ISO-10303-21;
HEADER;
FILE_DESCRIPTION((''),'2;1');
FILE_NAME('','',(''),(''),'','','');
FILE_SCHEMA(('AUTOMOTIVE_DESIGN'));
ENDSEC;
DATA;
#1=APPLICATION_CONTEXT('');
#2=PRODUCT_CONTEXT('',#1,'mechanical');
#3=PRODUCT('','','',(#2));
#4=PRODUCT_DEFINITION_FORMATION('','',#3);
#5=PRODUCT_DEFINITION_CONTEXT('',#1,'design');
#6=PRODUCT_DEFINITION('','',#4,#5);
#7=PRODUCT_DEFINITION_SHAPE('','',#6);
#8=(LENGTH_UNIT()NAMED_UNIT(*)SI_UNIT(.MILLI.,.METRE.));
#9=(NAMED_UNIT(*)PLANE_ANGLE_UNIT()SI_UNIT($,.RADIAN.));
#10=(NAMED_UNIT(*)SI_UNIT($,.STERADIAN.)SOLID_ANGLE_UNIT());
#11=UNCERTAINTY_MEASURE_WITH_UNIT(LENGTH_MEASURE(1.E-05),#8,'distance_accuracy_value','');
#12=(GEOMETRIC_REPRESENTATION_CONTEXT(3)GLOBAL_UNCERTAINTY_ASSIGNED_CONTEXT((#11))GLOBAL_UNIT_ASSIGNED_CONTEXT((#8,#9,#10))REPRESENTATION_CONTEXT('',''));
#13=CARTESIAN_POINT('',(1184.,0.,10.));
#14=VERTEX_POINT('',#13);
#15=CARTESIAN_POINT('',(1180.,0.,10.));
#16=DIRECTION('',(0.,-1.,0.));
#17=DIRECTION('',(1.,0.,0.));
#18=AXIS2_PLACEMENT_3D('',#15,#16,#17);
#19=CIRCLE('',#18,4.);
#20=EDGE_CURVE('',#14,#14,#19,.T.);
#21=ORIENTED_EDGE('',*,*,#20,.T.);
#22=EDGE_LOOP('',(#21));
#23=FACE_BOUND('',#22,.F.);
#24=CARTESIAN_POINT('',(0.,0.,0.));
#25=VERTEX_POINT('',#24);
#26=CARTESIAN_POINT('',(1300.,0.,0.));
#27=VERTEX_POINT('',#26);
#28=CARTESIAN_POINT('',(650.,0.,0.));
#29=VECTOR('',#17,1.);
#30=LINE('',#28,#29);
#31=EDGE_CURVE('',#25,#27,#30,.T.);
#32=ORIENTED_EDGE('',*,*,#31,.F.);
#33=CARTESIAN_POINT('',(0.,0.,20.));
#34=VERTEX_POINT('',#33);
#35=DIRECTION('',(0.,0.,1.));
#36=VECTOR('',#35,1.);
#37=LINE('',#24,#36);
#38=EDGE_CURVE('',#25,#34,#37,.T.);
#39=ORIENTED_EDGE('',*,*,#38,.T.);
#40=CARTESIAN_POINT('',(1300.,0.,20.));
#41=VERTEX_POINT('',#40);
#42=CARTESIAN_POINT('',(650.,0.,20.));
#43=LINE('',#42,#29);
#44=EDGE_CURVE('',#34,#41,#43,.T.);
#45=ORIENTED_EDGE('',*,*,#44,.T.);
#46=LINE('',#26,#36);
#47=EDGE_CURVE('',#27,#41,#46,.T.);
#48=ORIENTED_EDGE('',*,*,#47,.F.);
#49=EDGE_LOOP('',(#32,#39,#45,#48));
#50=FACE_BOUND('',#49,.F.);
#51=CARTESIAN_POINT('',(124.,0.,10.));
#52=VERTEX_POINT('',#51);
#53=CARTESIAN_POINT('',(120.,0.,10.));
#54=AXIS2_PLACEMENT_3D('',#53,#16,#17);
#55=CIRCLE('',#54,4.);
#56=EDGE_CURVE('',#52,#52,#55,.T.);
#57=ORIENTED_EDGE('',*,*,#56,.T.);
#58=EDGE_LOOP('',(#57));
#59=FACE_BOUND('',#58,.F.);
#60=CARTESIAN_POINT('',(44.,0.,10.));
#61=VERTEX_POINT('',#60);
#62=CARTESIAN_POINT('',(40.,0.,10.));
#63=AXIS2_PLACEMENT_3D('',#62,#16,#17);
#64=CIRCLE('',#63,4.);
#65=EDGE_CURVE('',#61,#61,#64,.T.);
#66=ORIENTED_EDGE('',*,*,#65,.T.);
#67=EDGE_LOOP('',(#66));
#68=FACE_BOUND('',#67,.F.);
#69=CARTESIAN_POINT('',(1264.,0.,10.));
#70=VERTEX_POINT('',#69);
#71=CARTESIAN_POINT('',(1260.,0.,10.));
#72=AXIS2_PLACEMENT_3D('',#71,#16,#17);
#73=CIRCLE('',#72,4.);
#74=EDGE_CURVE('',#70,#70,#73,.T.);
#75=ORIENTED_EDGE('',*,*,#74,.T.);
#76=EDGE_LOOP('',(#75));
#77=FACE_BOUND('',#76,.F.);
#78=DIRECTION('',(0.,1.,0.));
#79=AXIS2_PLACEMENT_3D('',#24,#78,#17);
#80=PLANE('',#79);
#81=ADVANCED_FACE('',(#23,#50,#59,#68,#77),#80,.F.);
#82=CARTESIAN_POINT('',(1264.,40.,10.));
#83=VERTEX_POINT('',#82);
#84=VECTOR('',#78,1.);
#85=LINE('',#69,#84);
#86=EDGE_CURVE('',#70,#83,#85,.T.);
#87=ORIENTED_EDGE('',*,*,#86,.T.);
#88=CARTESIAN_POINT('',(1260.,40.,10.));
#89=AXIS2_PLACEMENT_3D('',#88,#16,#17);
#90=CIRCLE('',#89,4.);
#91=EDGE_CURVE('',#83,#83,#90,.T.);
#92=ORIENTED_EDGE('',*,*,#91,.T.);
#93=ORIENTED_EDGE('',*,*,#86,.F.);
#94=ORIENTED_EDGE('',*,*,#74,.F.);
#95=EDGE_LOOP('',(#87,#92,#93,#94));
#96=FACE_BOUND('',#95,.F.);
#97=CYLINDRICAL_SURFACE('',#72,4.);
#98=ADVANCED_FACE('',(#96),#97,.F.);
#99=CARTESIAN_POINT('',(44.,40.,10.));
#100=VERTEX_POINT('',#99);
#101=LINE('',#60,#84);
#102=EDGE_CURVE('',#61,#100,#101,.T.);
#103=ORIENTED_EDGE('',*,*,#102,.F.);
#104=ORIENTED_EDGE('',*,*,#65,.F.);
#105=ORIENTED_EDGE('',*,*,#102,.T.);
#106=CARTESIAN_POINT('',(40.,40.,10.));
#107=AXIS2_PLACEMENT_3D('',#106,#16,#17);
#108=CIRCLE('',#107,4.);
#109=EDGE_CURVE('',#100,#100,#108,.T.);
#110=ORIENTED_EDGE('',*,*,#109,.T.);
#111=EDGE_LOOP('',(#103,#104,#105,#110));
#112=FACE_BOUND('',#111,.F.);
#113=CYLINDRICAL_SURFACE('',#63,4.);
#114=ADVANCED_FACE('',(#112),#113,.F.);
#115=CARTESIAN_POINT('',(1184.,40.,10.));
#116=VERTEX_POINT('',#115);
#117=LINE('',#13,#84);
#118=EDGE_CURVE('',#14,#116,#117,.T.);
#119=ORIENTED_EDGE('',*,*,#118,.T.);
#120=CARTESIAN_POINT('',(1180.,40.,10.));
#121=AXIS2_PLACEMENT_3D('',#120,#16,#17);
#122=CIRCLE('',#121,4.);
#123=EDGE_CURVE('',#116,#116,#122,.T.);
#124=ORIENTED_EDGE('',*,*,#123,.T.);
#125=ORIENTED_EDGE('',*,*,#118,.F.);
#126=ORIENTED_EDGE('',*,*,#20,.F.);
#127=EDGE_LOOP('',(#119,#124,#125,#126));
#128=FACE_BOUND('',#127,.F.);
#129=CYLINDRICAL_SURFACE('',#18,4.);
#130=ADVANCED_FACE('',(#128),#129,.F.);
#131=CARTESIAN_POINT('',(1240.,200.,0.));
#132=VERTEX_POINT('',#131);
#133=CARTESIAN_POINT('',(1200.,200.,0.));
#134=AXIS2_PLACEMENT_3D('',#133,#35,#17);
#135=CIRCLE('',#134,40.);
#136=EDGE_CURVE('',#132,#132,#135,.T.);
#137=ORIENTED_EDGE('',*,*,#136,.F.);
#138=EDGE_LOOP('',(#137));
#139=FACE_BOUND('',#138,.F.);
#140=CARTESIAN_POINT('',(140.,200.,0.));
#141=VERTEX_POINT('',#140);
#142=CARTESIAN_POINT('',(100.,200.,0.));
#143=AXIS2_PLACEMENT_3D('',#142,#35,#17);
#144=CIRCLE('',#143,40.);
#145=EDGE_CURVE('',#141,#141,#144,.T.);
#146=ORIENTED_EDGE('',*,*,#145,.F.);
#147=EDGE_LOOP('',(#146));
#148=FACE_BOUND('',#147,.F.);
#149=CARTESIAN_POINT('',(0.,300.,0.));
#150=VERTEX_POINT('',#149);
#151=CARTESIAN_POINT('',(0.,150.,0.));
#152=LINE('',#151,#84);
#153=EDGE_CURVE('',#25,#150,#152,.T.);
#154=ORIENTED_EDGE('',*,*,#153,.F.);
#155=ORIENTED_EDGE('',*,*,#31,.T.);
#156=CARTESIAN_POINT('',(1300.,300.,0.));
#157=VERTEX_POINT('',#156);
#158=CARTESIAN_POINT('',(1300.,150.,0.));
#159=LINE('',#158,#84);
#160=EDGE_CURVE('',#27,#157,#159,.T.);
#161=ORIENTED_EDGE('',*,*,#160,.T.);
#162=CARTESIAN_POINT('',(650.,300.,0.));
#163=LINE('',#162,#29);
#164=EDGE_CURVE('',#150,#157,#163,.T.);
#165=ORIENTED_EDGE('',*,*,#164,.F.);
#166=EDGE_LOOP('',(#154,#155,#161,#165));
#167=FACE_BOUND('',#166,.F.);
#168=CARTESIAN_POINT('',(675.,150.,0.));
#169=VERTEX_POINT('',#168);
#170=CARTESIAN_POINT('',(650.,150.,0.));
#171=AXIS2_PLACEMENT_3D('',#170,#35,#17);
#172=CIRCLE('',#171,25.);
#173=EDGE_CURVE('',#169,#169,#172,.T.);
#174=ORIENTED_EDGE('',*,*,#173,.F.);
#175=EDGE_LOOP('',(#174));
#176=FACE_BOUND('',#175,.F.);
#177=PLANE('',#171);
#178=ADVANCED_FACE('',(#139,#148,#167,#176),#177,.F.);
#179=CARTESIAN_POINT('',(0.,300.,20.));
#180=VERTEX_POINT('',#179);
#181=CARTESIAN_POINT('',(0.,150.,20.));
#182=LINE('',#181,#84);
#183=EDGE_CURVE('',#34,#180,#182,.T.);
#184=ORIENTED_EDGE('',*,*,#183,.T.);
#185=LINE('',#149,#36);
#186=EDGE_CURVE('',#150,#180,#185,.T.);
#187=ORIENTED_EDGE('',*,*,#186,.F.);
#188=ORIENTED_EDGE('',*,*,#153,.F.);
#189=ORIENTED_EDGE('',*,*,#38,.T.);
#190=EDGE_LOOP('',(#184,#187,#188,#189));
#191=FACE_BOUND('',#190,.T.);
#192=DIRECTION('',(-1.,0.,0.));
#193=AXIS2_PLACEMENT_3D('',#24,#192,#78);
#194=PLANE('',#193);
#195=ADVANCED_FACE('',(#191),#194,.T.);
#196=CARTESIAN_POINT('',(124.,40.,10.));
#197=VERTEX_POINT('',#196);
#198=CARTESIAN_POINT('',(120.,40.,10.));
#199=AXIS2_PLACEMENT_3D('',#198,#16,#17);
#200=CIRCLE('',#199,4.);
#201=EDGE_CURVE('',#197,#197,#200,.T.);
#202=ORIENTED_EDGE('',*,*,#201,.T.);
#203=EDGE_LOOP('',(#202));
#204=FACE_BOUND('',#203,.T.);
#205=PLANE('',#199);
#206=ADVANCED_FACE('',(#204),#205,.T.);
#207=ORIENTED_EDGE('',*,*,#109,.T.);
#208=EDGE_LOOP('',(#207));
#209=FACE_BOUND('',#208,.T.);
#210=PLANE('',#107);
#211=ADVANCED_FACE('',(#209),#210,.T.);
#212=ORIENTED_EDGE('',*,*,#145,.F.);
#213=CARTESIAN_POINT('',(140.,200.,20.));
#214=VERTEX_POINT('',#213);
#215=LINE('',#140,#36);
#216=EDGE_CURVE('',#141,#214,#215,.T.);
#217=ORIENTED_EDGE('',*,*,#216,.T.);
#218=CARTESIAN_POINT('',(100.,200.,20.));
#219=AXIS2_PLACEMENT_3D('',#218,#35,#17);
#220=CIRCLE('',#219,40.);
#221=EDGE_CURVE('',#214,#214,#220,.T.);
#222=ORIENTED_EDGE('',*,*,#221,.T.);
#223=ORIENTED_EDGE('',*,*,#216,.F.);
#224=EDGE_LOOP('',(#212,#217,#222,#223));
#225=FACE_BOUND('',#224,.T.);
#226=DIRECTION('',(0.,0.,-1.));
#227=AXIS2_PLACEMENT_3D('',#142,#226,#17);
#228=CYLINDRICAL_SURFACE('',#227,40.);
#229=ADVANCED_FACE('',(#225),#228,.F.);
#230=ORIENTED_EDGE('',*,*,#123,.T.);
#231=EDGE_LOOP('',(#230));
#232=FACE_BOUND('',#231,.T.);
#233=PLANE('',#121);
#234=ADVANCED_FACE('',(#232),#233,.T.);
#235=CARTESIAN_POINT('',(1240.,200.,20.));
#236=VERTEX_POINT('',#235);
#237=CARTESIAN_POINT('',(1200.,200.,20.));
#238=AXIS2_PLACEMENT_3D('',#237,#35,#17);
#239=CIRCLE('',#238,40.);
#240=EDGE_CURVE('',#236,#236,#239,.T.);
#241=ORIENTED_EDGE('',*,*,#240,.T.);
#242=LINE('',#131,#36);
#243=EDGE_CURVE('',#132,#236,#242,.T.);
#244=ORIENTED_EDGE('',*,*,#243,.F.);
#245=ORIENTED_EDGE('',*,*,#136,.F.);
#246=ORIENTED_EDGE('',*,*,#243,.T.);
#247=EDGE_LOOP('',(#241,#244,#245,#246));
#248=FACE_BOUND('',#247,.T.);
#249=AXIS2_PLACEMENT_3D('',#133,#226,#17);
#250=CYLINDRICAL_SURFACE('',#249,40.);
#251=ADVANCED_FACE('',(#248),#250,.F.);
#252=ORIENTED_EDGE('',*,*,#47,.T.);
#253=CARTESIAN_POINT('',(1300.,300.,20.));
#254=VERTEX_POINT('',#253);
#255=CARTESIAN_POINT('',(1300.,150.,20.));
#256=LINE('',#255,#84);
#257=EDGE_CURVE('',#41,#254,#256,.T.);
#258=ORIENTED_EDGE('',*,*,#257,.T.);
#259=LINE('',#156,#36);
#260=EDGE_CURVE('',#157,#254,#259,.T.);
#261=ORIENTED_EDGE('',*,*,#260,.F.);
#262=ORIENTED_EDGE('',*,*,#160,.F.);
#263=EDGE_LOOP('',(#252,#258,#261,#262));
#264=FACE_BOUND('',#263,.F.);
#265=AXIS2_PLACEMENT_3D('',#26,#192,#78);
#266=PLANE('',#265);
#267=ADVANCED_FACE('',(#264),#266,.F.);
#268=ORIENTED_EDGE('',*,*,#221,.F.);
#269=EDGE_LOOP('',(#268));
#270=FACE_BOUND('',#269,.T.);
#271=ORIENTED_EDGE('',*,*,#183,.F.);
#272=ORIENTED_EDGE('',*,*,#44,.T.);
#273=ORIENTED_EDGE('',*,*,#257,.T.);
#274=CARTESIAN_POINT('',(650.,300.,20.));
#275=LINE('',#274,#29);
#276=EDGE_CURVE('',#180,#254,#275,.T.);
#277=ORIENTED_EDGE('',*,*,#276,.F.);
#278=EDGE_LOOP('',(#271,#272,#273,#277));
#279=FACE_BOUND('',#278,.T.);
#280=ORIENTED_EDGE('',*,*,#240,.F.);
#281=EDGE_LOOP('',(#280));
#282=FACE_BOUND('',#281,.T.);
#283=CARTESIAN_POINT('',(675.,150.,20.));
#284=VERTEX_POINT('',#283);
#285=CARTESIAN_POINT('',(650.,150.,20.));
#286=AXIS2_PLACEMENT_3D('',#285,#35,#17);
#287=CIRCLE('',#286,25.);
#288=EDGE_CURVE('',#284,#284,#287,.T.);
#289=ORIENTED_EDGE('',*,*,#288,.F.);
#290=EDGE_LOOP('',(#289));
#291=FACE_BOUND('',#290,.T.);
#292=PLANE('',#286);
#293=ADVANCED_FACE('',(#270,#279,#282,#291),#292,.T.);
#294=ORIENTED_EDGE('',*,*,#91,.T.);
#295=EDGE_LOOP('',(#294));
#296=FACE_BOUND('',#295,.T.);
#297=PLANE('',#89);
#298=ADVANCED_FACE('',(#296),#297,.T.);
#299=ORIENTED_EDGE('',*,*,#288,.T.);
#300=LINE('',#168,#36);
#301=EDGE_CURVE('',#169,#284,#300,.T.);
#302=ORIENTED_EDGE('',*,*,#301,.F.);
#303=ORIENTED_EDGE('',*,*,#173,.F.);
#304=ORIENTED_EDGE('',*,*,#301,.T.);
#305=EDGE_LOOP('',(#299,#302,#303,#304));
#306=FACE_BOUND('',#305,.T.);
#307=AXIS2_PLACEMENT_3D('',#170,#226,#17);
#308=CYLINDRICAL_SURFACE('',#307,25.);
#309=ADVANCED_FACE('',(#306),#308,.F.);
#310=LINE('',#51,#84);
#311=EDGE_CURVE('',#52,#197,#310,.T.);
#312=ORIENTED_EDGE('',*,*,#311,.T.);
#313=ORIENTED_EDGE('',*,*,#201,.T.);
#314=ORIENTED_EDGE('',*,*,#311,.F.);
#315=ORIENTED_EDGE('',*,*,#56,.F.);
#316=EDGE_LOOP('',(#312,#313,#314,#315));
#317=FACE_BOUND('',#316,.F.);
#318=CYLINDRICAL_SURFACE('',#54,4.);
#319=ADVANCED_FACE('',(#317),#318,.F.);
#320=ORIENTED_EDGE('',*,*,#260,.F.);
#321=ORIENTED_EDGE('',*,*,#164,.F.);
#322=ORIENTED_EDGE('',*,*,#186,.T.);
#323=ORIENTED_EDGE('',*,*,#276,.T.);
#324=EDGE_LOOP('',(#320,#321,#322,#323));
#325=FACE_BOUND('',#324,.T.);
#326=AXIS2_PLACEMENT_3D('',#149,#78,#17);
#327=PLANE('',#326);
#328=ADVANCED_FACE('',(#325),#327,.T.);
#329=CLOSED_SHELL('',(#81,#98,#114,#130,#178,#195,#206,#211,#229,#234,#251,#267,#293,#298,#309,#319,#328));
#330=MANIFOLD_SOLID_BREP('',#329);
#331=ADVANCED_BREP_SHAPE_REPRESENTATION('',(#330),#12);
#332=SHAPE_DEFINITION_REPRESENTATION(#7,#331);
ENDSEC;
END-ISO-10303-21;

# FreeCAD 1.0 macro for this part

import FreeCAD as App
import Part
import Sketcher
from FreeCAD import Vector

doc = App.newDocument("Part")
body = doc.addObject("PartDesign::Body", "Body")

sketch1 = body.newObject("Sketcher::SketchObject", "Sketch")
sketch1.AttachmentSupport = (doc.getObject("XY_Plane"), [""])
sketch1.MapMode = "FlatFace"
sketch1.addGeometry([
    Part.LineSegment(Vector(0, 300, 0), Vector(0, 0, 0)),
    Part.LineSegment(Vector(0, 0, 0), Vector(1300, 0, 0)),
    Part.LineSegment(Vector(1300, 0, 0), Vector(1300, 300, 0)),
    Part.LineSegment(Vector(1300, 300, 0), Vector(0, 300, 0)),
    Part.Circle(Vector(650, 150, 0), Vector(0, 0, 1), 25),
    Part.Circle(Vector(100, 200, 0), Vector(0, 0, 1), 40),
    Part.Circle(Vector(1200, 200, 0), Vector(0, 0, 1), 40),
], False)
sketch1.addConstraint([
    Sketcher.Constraint("Coincident", 0, 2, 1, 1),
    Sketcher.Constraint("Coincident", 1, 2, 2, 1),
    Sketcher.Constraint("Coincident", 2, 2, 3, 1),
    Sketcher.Constraint("Coincident", 3, 2, 0, 1),
    Sketcher.Constraint("Vertical", 0),
    Sketcher.Constraint("Horizontal", 1),
    Sketcher.Constraint("Vertical", 2),
    Sketcher.Constraint("Horizontal", 3),
    Sketcher.Constraint("Coincident", 0, 2, -1, 1),
    Sketcher.Constraint("Equal", 5, 6),
    Sketcher.Constraint("Horizontal", 5, 3, 6, 3),
    Sketcher.Constraint("Diameter", 4, 50.0),
    Sketcher.Constraint("Diameter", 5, 80.0),
    Sketcher.Constraint("DistanceX", 1, 1, 1, 2, 1300.0),
    Sketcher.Constraint("DistanceY", 0, 2, 0, 1, 300.0),
    Sketcher.Constraint("DistanceX", -1, 1, 4, 3, 650.0),
    Sketcher.Constraint("DistanceY", -1, 1, 4, 3, 150.0),
    Sketcher.Constraint("DistanceX", -1, 1, 5, 3, 100.0),
    Sketcher.Constraint("DistanceY", -1, 1, 5, 3, 200.0),
    Sketcher.Constraint("DistanceX", -1, 1, 6, 3, 1200.0),
])
pad1 = body.newObject("PartDesign::Pad", "Pad")
pad1.Profile = sketch1
pad1.Length = 20

sketch2 = body.newObject("Sketcher::SketchObject", "Sketch001")
sketch2.AttachmentSupport = (doc.getObject("XZ_Plane"), [""])
sketch2.MapMode = "FlatFace"
sketch2.addGeometry([
    Part.Circle(Vector(40, 10, 0), Vector(0, 0, 1), 4),
    Part.Circle(Vector(120, 10, 0), Vector(0, 0, 1), 4),
    Part.Circle(Vector(1260, 10, 0), Vector(0, 0, 1), 4),
    Part.Circle(Vector(1180, 10, 0), Vector(0, 0, 1), 4),
], False)
sketch2.addConstraint([
    Sketcher.Constraint("Equal", 0, 1),
    Sketcher.Constraint("Equal", 1, 2),
    Sketcher.Constraint("Equal", 2, 3),
    Sketcher.Constraint("Horizontal", 0, 3, 1, 3),
    Sketcher.Constraint("Horizontal", 1, 3, 2, 3),
    Sketcher.Constraint("Horizontal", 2, 3, 3, 3),
    Sketcher.Constraint("Diameter", 0, 8.0),
    Sketcher.Constraint("DistanceX", -1, 1, 0, 3, 40.0),
    Sketcher.Constraint("DistanceY", -1, 1, 0, 3, 10.0),
    Sketcher.Constraint("DistanceX", -1, 1, 1, 3, 120.0),
    Sketcher.Constraint("DistanceX", -1, 1, 2, 3, 1260.0),
    Sketcher.Constraint("DistanceX", -1, 1, 3, 3, 1180.0),
])
pocket1 = body.newObject("PartDesign::Pocket", "Pocket")
pocket1.Profile = sketch2
pocket1.Length = 40

doc.recompute()
